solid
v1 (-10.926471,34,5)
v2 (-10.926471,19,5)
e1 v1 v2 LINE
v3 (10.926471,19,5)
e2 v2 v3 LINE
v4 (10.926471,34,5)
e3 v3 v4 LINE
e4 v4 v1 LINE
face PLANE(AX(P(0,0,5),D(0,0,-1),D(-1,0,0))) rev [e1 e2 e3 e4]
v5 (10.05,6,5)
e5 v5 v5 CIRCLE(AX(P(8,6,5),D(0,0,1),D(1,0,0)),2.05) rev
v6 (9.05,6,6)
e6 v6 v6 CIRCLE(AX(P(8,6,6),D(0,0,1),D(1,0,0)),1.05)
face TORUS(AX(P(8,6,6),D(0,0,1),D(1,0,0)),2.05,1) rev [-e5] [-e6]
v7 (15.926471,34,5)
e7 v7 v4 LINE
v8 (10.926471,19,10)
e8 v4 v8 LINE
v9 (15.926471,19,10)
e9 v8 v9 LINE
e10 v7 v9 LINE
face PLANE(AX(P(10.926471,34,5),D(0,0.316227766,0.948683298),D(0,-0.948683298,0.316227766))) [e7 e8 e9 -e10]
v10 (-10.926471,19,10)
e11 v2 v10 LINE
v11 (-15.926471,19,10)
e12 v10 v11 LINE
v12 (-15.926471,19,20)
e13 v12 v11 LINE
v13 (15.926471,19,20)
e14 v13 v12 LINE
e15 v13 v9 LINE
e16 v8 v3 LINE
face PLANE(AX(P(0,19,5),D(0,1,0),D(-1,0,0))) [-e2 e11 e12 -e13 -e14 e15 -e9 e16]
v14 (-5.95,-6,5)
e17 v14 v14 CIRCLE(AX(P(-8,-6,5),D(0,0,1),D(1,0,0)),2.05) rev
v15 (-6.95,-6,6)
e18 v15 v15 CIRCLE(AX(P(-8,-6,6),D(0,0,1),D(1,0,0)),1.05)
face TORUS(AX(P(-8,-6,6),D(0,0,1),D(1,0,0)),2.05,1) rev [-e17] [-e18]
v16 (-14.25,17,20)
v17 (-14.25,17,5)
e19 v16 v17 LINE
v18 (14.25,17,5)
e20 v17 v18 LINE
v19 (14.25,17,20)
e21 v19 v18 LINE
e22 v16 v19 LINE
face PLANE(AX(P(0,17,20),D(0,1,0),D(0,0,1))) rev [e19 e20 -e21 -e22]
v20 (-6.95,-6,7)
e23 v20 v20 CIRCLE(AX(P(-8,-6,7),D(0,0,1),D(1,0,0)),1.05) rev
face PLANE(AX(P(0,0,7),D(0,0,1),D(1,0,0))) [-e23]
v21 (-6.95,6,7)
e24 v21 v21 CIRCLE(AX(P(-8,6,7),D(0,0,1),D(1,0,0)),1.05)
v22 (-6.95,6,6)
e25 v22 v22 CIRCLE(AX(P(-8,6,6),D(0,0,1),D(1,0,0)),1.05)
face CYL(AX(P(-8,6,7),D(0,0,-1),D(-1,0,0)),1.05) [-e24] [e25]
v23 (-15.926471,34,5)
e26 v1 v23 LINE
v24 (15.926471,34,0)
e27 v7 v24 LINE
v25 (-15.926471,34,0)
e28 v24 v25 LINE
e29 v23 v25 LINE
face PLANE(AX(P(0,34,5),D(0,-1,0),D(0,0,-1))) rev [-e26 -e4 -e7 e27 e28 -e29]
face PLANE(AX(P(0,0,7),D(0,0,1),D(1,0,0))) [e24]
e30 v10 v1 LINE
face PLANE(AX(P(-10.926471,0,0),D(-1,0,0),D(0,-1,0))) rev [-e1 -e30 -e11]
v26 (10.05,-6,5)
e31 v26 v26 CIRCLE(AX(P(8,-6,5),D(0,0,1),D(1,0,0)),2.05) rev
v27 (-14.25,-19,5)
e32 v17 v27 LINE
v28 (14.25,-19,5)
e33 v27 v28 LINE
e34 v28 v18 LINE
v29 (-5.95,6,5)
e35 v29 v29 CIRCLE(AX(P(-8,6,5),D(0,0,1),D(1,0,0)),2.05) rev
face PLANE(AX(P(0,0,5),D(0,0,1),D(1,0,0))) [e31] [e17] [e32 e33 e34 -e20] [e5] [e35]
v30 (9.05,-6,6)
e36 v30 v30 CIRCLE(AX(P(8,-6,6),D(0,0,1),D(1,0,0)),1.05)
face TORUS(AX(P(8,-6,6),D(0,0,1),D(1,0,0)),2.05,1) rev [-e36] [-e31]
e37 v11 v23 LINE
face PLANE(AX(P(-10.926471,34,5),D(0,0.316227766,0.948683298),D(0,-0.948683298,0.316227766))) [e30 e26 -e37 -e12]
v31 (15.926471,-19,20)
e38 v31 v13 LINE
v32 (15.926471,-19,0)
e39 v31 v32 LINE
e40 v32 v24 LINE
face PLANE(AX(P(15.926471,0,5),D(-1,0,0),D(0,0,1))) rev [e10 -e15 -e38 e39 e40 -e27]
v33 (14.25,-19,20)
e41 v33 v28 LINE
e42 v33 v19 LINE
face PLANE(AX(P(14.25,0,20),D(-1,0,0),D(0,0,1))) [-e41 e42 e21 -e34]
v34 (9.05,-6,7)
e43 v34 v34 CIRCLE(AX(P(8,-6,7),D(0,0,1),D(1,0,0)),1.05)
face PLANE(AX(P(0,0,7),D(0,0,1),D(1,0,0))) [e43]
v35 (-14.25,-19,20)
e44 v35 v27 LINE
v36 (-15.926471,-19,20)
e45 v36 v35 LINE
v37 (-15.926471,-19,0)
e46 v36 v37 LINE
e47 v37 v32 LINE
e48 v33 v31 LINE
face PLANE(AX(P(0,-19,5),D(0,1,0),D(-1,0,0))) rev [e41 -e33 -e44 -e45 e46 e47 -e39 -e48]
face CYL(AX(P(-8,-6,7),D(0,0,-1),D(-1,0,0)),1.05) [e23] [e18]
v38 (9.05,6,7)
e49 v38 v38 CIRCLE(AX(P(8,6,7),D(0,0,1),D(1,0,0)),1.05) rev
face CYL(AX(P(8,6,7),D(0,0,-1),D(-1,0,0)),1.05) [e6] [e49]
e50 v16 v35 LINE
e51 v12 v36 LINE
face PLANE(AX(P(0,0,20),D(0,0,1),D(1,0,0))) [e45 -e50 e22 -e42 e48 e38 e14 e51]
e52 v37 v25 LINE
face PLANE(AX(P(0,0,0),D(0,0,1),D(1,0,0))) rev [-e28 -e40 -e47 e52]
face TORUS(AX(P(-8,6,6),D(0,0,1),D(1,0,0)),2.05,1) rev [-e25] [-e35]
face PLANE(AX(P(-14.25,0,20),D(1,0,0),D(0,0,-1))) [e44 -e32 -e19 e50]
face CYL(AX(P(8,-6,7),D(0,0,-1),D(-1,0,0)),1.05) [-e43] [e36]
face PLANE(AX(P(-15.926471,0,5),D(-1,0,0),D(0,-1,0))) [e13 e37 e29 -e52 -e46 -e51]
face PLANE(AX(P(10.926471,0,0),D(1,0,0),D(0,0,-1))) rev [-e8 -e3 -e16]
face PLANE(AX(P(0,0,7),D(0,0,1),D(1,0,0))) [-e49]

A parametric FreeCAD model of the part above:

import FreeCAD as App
import Part
import Sketcher


def edges_at(feature, points):
    """Names of the edges that pass closest to the given points."""
    edges = feature.Shape.Edges
    near = lambda p: min(range(len(edges)), key=lambda i: edges[i].distToShape(Part.Vertex(*p))[0])
    return sorted({f"Edge{near(p) + 1}" for p in points})

doc = App.newDocument("Part")
body = doc.addObject("PartDesign::Body", "Body")

# Sketch on XY plane
sketch1 = body.newObject("Sketcher::SketchObject", "Sketch")
sketch1.AttachmentSupport = (doc.getObject("XY_Plane"), [""])
sketch1.MapMode = "FlatFace"
sketch1.addGeometry([
    Part.LineSegment(App.Vector(-15.926471, 19, 0), App.Vector(-15.926471, -19, 0)),
    Part.LineSegment(App.Vector(-15.926471, -19, 0), App.Vector(15.926471, -19, 0)),
    Part.LineSegment(App.Vector(15.926471, -19, 0), App.Vector(15.926471, 19, 0)),
    Part.LineSegment(App.Vector(15.926471, 19, 0), App.Vector(-15.926471, 19, 0)),
], False)
sketch1.addConstraint([
    Sketcher.Constraint("Coincident", 0, 2, 1, 1),
    Sketcher.Constraint("Coincident", 1, 2, 2, 1),
    Sketcher.Constraint("Coincident", 2, 2, 3, 1),
    Sketcher.Constraint("Coincident", 3, 2, 0, 1),
    Sketcher.Constraint("Vertical", 0),
    Sketcher.Constraint("Horizontal", 1),
    Sketcher.Constraint("Vertical", 2),
    Sketcher.Constraint("Horizontal", 3),
    Sketcher.Constraint("Symmetric", 0, 2, 2, 2, -1, 1),
    Sketcher.Constraint("DistanceY", 0, 2, 0, 1, 38.0),
    Sketcher.Constraint("DistanceX", 1, 1, 1, 2, 31.852941),
])
pad1 = body.newObject("PartDesign::Pad", "Pad")
pad1.Profile = sketch1
pad1.Length = 5

# Sketch on XY plane
sketch2 = body.newObject("Sketcher::SketchObject", "Sketch001")
sketch2.AttachmentSupport = (doc.getObject("XY_Plane"), [""])
sketch2.MapMode = "FlatFace"
sketch2.AttachmentOffset = App.Placement(App.Vector(0, 0, 5), App.Rotation())
sketch2.addGeometry([
    Part.LineSegment(App.Vector(-14.25, -19, 0), App.Vector(-14.25, 17, 0)),  # 0
    Part.LineSegment(App.Vector(-14.25, 17, 0), App.Vector(14.25, 17, 0)),  # 1
    Part.LineSegment(App.Vector(14.25, 17, 0), App.Vector(14.25, -19, 0)),  # 2
    Part.LineSegment(App.Vector(14.25, -19, 0), App.Vector(15.926471, -19, 0)),  # 3
    Part.LineSegment(App.Vector(15.926471, -19, 0), App.Vector(15.926471, 19, 0)),  # 4
    Part.LineSegment(App.Vector(15.926471, 19, 0), App.Vector(-15.926471, 19, 0)),  # 5
    Part.LineSegment(App.Vector(-15.926471, 19, 0), App.Vector(-15.926471, -19, 0)),  # 6
    Part.LineSegment(App.Vector(-15.926471, -19, 0), App.Vector(-14.25, -19, 0)),  # 7
], False)
sketch2.addConstraint([
    Sketcher.Constraint("Coincident", 0, 2, 1, 1),
    Sketcher.Constraint("Coincident", 1, 2, 2, 1),
    Sketcher.Constraint("Coincident", 2, 2, 3, 1),
    Sketcher.Constraint("Coincident", 3, 2, 4, 1),
    Sketcher.Constraint("Coincident", 4, 2, 5, 1),
    Sketcher.Constraint("Coincident", 5, 2, 6, 1),
    Sketcher.Constraint("Coincident", 6, 2, 7, 1),
    Sketcher.Constraint("Coincident", 7, 2, 0, 1),
    Sketcher.Constraint("Vertical", 0),
    Sketcher.Constraint("Horizontal", 1),
    Sketcher.Constraint("Vertical", 2),
    Sketcher.Constraint("Horizontal", 3),
    Sketcher.Constraint("Vertical", 4),
    Sketcher.Constraint("Horizontal", 5),
    Sketcher.Constraint("Vertical", 6),
    Sketcher.Constraint("Horizontal", 7),
    Sketcher.Constraint("Symmetric", 3, 2, 5, 2, -1, 1),
    Sketcher.Constraint("Symmetric", 2, 2, 7, 2, -2),
    Sketcher.Constraint("DistanceY", 0, 1, 0, 2, 36.0),
    Sketcher.Constraint("DistanceY", 4, 1, 4, 2, 38.0),
    Sketcher.Constraint("DistanceX", 1, 1, 1, 2, 28.5),
    Sketcher.Constraint("DistanceX", 3, 1, 3, 2, 1.676471),
])
pad2 = body.newObject("PartDesign::Pad", "Pad001")
pad2.Profile = sketch2
pad2.Length = 15

# Sketch on XY plane
sketch3 = body.newObject("Sketcher::SketchObject", "Sketch002")
sketch3.AttachmentSupport = (doc.getObject("XY_Plane"), [""])
sketch3.MapMode = "FlatFace"
sketch3.AttachmentOffset = App.Placement(App.Vector(0, 0, 5), App.Rotation())
sketch3.addGeometry([
    Part.Circle(App.Vector(-8, 6, 0), App.Vector(0, 0, 1), 1.05),
    Part.Circle(App.Vector(8, 6, 0), App.Vector(0, 0, 1), 1.05),
    Part.Circle(App.Vector(-8, -6, 0), App.Vector(0, 0, 1), 1.05),
    Part.Circle(App.Vector(8, -6, 0), App.Vector(0, 0, 1), 1.05),
], False)
sketch3.addConstraint([
    Sketcher.Constraint("Equal", 0, 1),
    Sketcher.Constraint("Equal", 1, 2),
    Sketcher.Constraint("Equal", 2, 3),
    Sketcher.Constraint("Symmetric", 1, 3, 2, 3, -1, 1),
    Sketcher.Constraint("Symmetric", 0, 3, 3, 3, -1, 1),
    Sketcher.Constraint("Symmetric", 0, 3, 1, 3, -2),
    Sketcher.Constraint("Diameter", 0, 2.1),
    Sketcher.Constraint("DistanceX", 0, 3, -1, 1, 8.0),
    Sketcher.Constraint("DistanceY", -1, 1, 0, 3, 6.0),
])
pad3 = body.newObject("PartDesign::Pad", "Pad002")
pad3.Profile = sketch3
pad3.Length = 2

# Sketch on XY plane
sketch4 = body.newObject("Sketcher::SketchObject", "Sketch003")
sketch4.AttachmentSupport = (doc.getObject("XY_Plane"), [""])
sketch4.MapMode = "FlatFace"
sketch4.addGeometry([
    Part.LineSegment(App.Vector(15.926471, 34, 0), App.Vector(15.926471, 19, 0)),
    Part.LineSegment(App.Vector(15.926471, 19, 0), App.Vector(-15.926471, 19, 0)),
    Part.LineSegment(App.Vector(-15.926471, 19, 0), App.Vector(-15.926471, 34, 0)),
    Part.LineSegment(App.Vector(-15.926471, 34, 0), App.Vector(15.926471, 34, 0)),
], False)
sketch4.addConstraint([
    Sketcher.Constraint("Coincident", 0, 2, 1, 1),
    Sketcher.Constraint("Coincident", 1, 2, 2, 1),
    Sketcher.Constraint("Coincident", 2, 2, 3, 1),
    Sketcher.Constraint("Coincident", 3, 2, 0, 1),
    Sketcher.Constraint("Vertical", 0),
    Sketcher.Constraint("Horizontal", 1),
    Sketcher.Constraint("Vertical", 2),
    Sketcher.Constraint("Horizontal", 3),
    Sketcher.Constraint("DistanceY", 0, 2, 0, 1, 15.0),
    Sketcher.Constraint("DistanceY", -1, 1, 0, 2, 19.0),
    Sketcher.Constraint("DistanceX", 1, 2, 1, 1, 31.852941),
    Sketcher.Constraint("DistanceX", -1, 1, 0, 2, 15.926471),
])
pad4 = body.newObject("PartDesign::Pad", "Pad003")
pad4.Profile = sketch4
pad4.Length = 5

# Sketch on YZ plane
sketch5 = body.newObject("Sketcher::SketchObject", "Sketch004")
sketch5.AttachmentSupport = (doc.getObject("YZ_Plane"), [""])
sketch5.MapMode = "FlatFace"
sketch5.AttachmentOffset = App.Placement(App.Vector(0, 0, -15.926471), App.Rotation())
sketch5.addGeometry([
    Part.LineSegment(App.Vector(19, 10, 0), App.Vector(34, 5, 0)),
    Part.LineSegment(App.Vector(34, 5, 0), App.Vector(19, 5, 0)),
    Part.LineSegment(App.Vector(19, 5, 0), App.Vector(19, 10, 0)),
], False)
sketch5.addConstraint([
    Sketcher.Constraint("Coincident", 0, 2, 1, 1),
    Sketcher.Constraint("Coincident", 1, 2, 2, 1),
    Sketcher.Constraint("Coincident", 2, 2, 0, 1),
    Sketcher.Constraint("Horizontal", 1),
    Sketcher.Constraint("Vertical", 2),
    Sketcher.Constraint("DistanceX", 1, 2, 1, 1, 15.0),
    Sketcher.Constraint("DistanceY", 2, 1, 2, 2, 5.0),
    Sketcher.Constraint("DistanceX", -1, 1, 0, 2, 34.0),
    Sketcher.Constraint("DistanceY", -1, 1, 0, 2, 5.0),
])
pad5 = body.newObject("PartDesign::Pad", "Pad004")
pad5.Profile = sketch5
pad5.Length = 5

# Sketch on YZ plane
sketch6 = body.newObject("Sketcher::SketchObject", "Sketch005")
sketch6.AttachmentSupport = (doc.getObject("YZ_Plane"), [""])
sketch6.MapMode = "FlatFace"
sketch6.AttachmentOffset = App.Placement(App.Vector(0, 0, 15.926471), App.Rotation())
sketch6.addGeometry([
    Part.LineSegment(App.Vector(19, 5, 0), App.Vector(34, 5, 0)),
    Part.LineSegment(App.Vector(34, 5, 0), App.Vector(19, 10, 0)),
    Part.LineSegment(App.Vector(19, 10, 0), App.Vector(19, 5, 0)),
], False)
sketch6.addConstraint([
    Sketcher.Constraint("Coincident", 0, 2, 1, 1),
    Sketcher.Constraint("Coincident", 1, 2, 2, 1),
    Sketcher.Constraint("Coincident", 2, 2, 0, 1),
    Sketcher.Constraint("Horizontal", 0),
    Sketcher.Constraint("Vertical", 2),
    Sketcher.Constraint("DistanceX", 0, 1, 0, 2, 15.0),
    Sketcher.Constraint("DistanceY", 2, 2, 2, 1, 5.0),
    Sketcher.Constraint("DistanceX", -1, 1, 0, 2, 34.0),
    Sketcher.Constraint("DistanceY", -1, 1, 0, 2, 5.0),
])
pad6 = body.newObject("PartDesign::Pad", "Pad005")
pad6.Profile = sketch6
pad6.Length = 5
pad6.Reversed = True
doc.recompute()

fillet = body.newObject("PartDesign::Fillet", "Fillet")
fillet.Base = (pad6, edges_at(pad6, [
    (-9.05, 6, 5),
    (6.95, 6, 5),
    (-9.05, -6, 5),
    (6.95, -6, 5),
]))
fillet.Radius = 1

doc.recompute()
